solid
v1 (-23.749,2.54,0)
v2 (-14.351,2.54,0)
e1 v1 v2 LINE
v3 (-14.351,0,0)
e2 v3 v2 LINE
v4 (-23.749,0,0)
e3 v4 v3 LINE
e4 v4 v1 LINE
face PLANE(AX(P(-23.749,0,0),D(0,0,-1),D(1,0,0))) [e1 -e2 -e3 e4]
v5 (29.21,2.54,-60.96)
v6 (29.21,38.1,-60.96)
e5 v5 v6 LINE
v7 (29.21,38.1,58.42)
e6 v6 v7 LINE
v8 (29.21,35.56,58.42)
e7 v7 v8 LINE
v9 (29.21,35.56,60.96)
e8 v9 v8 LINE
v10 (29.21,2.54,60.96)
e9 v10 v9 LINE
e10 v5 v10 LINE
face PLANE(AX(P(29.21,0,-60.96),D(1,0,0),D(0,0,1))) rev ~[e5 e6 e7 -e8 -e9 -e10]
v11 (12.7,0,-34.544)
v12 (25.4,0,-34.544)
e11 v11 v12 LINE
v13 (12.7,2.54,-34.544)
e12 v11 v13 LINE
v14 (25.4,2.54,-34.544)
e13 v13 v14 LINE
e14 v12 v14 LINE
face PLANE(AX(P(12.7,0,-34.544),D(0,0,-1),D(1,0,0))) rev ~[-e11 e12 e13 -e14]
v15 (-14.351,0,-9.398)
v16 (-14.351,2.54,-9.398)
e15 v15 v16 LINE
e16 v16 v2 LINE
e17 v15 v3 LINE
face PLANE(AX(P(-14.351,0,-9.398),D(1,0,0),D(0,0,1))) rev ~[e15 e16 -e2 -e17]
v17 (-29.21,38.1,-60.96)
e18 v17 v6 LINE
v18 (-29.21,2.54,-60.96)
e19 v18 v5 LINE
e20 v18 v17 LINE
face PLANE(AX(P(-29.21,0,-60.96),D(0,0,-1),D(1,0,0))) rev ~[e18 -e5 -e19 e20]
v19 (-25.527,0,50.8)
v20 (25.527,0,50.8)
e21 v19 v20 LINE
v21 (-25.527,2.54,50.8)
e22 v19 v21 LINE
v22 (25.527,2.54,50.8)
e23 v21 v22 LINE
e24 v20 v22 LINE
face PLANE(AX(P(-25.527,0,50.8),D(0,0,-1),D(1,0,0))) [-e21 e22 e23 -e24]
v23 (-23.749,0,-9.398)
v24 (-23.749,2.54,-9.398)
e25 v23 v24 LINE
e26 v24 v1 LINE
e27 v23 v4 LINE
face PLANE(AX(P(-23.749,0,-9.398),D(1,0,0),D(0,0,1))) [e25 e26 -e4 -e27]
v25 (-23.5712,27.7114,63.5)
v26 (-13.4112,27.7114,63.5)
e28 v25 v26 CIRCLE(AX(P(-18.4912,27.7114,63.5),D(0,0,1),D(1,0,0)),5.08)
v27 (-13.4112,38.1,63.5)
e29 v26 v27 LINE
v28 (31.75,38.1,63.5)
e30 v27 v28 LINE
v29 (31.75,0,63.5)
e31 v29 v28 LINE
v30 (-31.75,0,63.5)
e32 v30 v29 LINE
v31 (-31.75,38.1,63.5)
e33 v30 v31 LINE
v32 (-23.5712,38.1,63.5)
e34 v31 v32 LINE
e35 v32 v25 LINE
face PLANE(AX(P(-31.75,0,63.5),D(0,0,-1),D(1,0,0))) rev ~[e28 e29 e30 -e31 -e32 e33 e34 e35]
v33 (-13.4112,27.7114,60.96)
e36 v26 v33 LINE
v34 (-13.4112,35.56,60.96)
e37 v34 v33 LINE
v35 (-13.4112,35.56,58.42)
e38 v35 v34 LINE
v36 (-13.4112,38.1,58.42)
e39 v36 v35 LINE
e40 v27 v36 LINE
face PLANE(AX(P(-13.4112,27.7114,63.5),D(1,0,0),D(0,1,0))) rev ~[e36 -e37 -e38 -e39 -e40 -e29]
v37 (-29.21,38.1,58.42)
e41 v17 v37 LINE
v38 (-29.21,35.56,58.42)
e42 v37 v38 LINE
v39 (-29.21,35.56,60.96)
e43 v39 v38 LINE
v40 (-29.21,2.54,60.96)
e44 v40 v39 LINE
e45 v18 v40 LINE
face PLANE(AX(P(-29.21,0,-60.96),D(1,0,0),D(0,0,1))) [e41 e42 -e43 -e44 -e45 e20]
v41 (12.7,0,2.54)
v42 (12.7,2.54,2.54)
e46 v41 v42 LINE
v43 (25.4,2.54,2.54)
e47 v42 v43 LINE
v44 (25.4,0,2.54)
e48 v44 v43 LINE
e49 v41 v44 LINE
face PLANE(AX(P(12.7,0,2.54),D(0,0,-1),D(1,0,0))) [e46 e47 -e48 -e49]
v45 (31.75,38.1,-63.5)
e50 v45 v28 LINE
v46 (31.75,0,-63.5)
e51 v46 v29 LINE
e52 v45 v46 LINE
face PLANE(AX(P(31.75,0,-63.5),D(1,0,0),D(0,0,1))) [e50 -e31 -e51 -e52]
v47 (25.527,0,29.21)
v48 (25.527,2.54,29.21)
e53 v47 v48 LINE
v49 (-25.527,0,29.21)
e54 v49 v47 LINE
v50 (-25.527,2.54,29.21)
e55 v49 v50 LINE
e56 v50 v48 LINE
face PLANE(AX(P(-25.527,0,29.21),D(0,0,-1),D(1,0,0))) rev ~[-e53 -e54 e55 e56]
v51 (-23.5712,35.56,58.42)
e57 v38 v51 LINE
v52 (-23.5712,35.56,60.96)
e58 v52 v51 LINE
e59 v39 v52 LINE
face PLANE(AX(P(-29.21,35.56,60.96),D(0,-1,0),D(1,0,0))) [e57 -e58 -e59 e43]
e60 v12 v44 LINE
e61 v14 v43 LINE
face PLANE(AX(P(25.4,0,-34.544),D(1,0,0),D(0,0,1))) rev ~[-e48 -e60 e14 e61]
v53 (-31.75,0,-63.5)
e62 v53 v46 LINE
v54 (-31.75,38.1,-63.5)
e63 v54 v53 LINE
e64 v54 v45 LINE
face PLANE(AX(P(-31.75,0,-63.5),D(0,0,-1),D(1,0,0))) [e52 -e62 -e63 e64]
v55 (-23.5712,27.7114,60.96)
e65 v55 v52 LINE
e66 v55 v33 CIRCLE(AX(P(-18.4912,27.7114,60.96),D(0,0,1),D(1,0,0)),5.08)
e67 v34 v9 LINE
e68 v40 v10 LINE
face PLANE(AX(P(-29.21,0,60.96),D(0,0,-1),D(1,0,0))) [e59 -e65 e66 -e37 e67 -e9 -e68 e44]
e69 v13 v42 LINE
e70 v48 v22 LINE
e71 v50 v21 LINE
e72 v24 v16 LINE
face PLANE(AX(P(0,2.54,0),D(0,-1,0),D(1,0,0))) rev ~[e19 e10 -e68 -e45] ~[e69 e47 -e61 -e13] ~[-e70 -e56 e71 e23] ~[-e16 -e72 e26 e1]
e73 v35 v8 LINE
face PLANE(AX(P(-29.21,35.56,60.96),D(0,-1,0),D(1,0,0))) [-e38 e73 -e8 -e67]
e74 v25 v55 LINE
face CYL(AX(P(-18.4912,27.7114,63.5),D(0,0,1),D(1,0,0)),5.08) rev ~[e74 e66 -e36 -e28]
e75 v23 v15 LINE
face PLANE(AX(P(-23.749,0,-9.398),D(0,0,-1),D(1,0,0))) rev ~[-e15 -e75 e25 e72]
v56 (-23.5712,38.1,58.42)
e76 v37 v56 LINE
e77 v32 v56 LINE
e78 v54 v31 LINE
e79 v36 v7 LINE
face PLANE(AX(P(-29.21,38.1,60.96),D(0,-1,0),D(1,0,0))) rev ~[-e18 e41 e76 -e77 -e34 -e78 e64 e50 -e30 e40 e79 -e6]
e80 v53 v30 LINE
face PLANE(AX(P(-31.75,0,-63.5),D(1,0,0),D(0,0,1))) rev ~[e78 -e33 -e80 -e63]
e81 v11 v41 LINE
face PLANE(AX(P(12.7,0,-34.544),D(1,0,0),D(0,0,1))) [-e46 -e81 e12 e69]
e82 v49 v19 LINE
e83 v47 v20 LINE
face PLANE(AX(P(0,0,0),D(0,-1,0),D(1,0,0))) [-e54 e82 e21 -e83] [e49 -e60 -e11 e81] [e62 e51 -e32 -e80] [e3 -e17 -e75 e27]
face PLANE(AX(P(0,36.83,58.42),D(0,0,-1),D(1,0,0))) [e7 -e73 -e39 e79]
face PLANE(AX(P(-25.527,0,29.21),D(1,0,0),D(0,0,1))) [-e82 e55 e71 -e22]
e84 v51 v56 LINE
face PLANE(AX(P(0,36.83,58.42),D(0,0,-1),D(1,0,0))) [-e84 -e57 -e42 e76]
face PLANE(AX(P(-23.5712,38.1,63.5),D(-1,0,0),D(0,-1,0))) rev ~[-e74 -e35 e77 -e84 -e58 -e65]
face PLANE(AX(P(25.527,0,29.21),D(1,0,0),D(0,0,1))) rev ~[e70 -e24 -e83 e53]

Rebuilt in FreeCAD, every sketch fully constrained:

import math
import FreeCAD as App
import Part
import Sketcher
Q = App.Units.Quantity


def add_polygon(sketch, points):
    """Adds a closed chain of lines whose ends are joined by coincident constraints."""
    first, n = sketch.GeometryCount, len(points)
    for a, b in zip(points, points[1:] + points[:1]):
        sketch.addGeometry(Part.LineSegment(App.Vector(*a, 0), App.Vector(*b, 0)), False)
    for i in range(n):
        sketch.addConstraint(Sketcher.Constraint("Coincident", first + i, 2, first + (i + 1) % n, 1))

doc = App.newDocument("Part")
body = doc.addObject("PartDesign::Body", "Body")

sketch1 = body.newObject("Sketcher::SketchObject", "Sketch")
sketch1.AttachmentSupport = (doc.getObject("XZ_Plane"), [""])
sketch1.MapMode = "FlatFace"
add_polygon(sketch1, [(-32, 64), (-32, -64), (32, -64), (32, 64)])
add_polygon(sketch1, [(-14, -9), (-24, -9), (-24, 0), (-14, 0)])
add_polygon(sketch1, [(25, -35), (13, -35), (13, 3), (25, 3)])
add_polygon(sketch1, [(26, 29), (-26, 29), (-26, 51), (26, 51)])
sketch1.addConstraint([
    Sketcher.Constraint("Vertical", 0),
    Sketcher.Constraint("Horizontal", 1),
    Sketcher.Constraint("Vertical", 2),
    Sketcher.Constraint("Horizontal", 3),
    Sketcher.Constraint("Horizontal", 4),
    Sketcher.Constraint("Vertical", 5),
    Sketcher.Constraint("Horizontal", 6),
    Sketcher.Constraint("Vertical", 7),
    Sketcher.Constraint("Horizontal", 8),
    Sketcher.Constraint("Vertical", 9),
    Sketcher.Constraint("Horizontal", 10),
    Sketcher.Constraint("Vertical", 11),
    Sketcher.Constraint("Horizontal", 12),
    Sketcher.Constraint("Vertical", 13),
    Sketcher.Constraint("Horizontal", 14),
    Sketcher.Constraint("Vertical", 15),
    Sketcher.Constraint("Symmetric", 0, 2, 2, 2, -1, 1),
    Sketcher.Constraint("PointOnObject", 5, 2, -1),
    Sketcher.Constraint("Equal", 6, 5),
    Sketcher.Constraint("DistanceY", 0, 2, 0, 1, Q("5 in")),
    Sketcher.Constraint("DistanceX", 1, 1, 1, 2, Q("2.5 in")),
    Sketcher.Constraint("DistanceX", 8, 2, 8, 1, Q("0.5 in")),
    Sketcher.Constraint("DistanceX", -1, 1, 10, 2, Q("1 in")),
    Sketcher.Constraint("DistanceY", -1, 1, 13, 2, Q("2 in")),
    Sketcher.Constraint("DistanceX", 4, 2, 4, 1, Q("0.37 in")),
    Sketcher.Constraint("DistanceX", 12, 2, 12, 1, Q("2.01 in")),
    Sketcher.Constraint("DistanceY", 9, 1, 9, 2, Q("1.46 in")),
    Sketcher.Constraint("DistanceY", 13, 1, 13, 2, Q("0.85 in")),
    Sketcher.Constraint("DistanceY", -1, 1, 9, 2, Q("0.1 in")),
    Sketcher.Constraint("DistanceX", 12, 2, 5, 2, Q("0.07 in")),
    Sketcher.Constraint("DistanceX", 4, 2, -1, 1, Q("0.935 in")),
])
pad1 = body.newObject("PartDesign::Pad", "Pad")
pad1.Profile = sketch1
pad1.Length = Q("0.1 in")
pad1.Reversed = True

sketch2 = body.newObject("Sketcher::SketchObject", "Sketch001")
sketch2.AttachmentSupport = (doc.getObject("XZ_Plane"), [""])
sketch2.MapMode = "FlatFace"
add_polygon(sketch2, [(-32, 64), (-32, -64), (32, -64), (32, 64)])
add_polygon(sketch2, [(29, -61), (-29, -61), (-29, 61), (29, 61)])
sketch2.addConstraint([
    Sketcher.Constraint("Vertical", 0),
    Sketcher.Constraint("Horizontal", 1),
    Sketcher.Constraint("Vertical", 2),
    Sketcher.Constraint("Horizontal", 3),
    Sketcher.Constraint("Horizontal", 4),
    Sketcher.Constraint("Vertical", 5),
    Sketcher.Constraint("Horizontal", 6),
    Sketcher.Constraint("Vertical", 7),
    Sketcher.Constraint("Symmetric", 0, 2, 2, 2, -1, 1),
    Sketcher.Constraint("Symmetric", 4, 2, 6, 2, -1, 1),
    Sketcher.Constraint("DistanceY", 0, 2, 0, 1, Q("5 in")),
    Sketcher.Constraint("DistanceX", 1, 1, 1, 2, Q("2.5 in")),
    Sketcher.Constraint("DistanceX", 4, 2, 4, 1, Q("2.3 in")),
    Sketcher.Constraint("DistanceY", 5, 1, 5, 2, Q("4.8 in")),
])
pad2 = body.newObject("PartDesign::Pad", "Pad001")
pad2.Profile = sketch2
pad2.Length = Q("1.5 in")
pad2.Reversed = True

sketch3 = body.newObject("Sketcher::SketchObject", "Sketch002")
sketch3.AttachmentSupport = (doc.getObject("XY_Plane"), [""])
sketch3.MapMode = "FlatFace"
sketch3.AttachmentOffset = App.Placement(App.Vector(0, 0, 2.4 * 25.4), App.Rotation())
add_polygon(sketch3, [(-29.2, 35.6), (-29.2, 38.1), (29.2, 38.1), (29.2, 35.6)])
sketch3.addConstraint([
    Sketcher.Constraint("Vertical", 0),
    Sketcher.Constraint("Horizontal", 1),
    Sketcher.Constraint("Vertical", 2),
    Sketcher.Constraint("Horizontal", 3),
    Sketcher.Constraint("DistanceX", 1, 1, 1, 2, Q("2.3 in")),
    Sketcher.Constraint("DistanceY", 0, 1, 0, 2, Q("0.1 in")),
    Sketcher.Constraint("DistanceY", -1, 1, 0, 2, Q("1.5 in")),
    Sketcher.Constraint("DistanceX", 0, 2, -1, 1, Q("1.15 in")),
])
pad3 = body.newObject("PartDesign::Pad", "Pad002")
pad3.Profile = sketch3
pad3.Length = Q("0.1 in")
pad3.Reversed = True

sketch4 = body.newObject("Sketcher::SketchObject", "Sketch003")
sketch4.AttachmentSupport = (doc.getObject("XY_Plane"), [""])
sketch4.MapMode = "FlatFace"
sketch4.AttachmentOffset = App.Placement(App.Vector(0, 0, 2.5 * 25.4), App.Rotation())
sketch4.addGeometry([
    Part.ArcOfCircle(Part.Circle(App.Vector(-18, 28, 0), App.Vector(0, 0, 1), 5), math.radians(180), math.radians(360)),
    Part.LineSegment(App.Vector(-13, 28, 0), App.Vector(-13, 38, 0)),
    Part.LineSegment(App.Vector(-13, 38, 0), App.Vector(-24, 38, 0)),
    Part.LineSegment(App.Vector(-24, 38, 0), App.Vector(-24, 28, 0)),
], False)
sketch4.addConstraint([
    Sketcher.Constraint("Tangent", 0, 2, 1, 1),
    Sketcher.Constraint("Coincident", 1, 2, 2, 1),
    Sketcher.Constraint("Coincident", 2, 2, 3, 1),
    Sketcher.Constraint("Tangent", 3, 2, 0, 1),
    Sketcher.Constraint("Vertical", 1),
    Sketcher.Constraint("Horizontal", 2),
    Sketcher.Constraint("Vertical", 3),
    Sketcher.Constraint("Radius", 0, Q("0.2 in")),
    Sketcher.Constraint("DistanceY", -1, 1, 1, 2, Q("1.5 in")),
    Sketcher.Constraint("DistanceY", 1, 1, 1, 2, Q("0.409 in")),
    Sketcher.Constraint("DistanceX", 0, 3, -1, 1, Q("0.728 in")),
])
pocket1 = body.newObject("PartDesign::Pocket", "Pocket")
pocket1.Profile = sketch4
pocket1.Length = Q("0.476 in")

doc.recompute()
